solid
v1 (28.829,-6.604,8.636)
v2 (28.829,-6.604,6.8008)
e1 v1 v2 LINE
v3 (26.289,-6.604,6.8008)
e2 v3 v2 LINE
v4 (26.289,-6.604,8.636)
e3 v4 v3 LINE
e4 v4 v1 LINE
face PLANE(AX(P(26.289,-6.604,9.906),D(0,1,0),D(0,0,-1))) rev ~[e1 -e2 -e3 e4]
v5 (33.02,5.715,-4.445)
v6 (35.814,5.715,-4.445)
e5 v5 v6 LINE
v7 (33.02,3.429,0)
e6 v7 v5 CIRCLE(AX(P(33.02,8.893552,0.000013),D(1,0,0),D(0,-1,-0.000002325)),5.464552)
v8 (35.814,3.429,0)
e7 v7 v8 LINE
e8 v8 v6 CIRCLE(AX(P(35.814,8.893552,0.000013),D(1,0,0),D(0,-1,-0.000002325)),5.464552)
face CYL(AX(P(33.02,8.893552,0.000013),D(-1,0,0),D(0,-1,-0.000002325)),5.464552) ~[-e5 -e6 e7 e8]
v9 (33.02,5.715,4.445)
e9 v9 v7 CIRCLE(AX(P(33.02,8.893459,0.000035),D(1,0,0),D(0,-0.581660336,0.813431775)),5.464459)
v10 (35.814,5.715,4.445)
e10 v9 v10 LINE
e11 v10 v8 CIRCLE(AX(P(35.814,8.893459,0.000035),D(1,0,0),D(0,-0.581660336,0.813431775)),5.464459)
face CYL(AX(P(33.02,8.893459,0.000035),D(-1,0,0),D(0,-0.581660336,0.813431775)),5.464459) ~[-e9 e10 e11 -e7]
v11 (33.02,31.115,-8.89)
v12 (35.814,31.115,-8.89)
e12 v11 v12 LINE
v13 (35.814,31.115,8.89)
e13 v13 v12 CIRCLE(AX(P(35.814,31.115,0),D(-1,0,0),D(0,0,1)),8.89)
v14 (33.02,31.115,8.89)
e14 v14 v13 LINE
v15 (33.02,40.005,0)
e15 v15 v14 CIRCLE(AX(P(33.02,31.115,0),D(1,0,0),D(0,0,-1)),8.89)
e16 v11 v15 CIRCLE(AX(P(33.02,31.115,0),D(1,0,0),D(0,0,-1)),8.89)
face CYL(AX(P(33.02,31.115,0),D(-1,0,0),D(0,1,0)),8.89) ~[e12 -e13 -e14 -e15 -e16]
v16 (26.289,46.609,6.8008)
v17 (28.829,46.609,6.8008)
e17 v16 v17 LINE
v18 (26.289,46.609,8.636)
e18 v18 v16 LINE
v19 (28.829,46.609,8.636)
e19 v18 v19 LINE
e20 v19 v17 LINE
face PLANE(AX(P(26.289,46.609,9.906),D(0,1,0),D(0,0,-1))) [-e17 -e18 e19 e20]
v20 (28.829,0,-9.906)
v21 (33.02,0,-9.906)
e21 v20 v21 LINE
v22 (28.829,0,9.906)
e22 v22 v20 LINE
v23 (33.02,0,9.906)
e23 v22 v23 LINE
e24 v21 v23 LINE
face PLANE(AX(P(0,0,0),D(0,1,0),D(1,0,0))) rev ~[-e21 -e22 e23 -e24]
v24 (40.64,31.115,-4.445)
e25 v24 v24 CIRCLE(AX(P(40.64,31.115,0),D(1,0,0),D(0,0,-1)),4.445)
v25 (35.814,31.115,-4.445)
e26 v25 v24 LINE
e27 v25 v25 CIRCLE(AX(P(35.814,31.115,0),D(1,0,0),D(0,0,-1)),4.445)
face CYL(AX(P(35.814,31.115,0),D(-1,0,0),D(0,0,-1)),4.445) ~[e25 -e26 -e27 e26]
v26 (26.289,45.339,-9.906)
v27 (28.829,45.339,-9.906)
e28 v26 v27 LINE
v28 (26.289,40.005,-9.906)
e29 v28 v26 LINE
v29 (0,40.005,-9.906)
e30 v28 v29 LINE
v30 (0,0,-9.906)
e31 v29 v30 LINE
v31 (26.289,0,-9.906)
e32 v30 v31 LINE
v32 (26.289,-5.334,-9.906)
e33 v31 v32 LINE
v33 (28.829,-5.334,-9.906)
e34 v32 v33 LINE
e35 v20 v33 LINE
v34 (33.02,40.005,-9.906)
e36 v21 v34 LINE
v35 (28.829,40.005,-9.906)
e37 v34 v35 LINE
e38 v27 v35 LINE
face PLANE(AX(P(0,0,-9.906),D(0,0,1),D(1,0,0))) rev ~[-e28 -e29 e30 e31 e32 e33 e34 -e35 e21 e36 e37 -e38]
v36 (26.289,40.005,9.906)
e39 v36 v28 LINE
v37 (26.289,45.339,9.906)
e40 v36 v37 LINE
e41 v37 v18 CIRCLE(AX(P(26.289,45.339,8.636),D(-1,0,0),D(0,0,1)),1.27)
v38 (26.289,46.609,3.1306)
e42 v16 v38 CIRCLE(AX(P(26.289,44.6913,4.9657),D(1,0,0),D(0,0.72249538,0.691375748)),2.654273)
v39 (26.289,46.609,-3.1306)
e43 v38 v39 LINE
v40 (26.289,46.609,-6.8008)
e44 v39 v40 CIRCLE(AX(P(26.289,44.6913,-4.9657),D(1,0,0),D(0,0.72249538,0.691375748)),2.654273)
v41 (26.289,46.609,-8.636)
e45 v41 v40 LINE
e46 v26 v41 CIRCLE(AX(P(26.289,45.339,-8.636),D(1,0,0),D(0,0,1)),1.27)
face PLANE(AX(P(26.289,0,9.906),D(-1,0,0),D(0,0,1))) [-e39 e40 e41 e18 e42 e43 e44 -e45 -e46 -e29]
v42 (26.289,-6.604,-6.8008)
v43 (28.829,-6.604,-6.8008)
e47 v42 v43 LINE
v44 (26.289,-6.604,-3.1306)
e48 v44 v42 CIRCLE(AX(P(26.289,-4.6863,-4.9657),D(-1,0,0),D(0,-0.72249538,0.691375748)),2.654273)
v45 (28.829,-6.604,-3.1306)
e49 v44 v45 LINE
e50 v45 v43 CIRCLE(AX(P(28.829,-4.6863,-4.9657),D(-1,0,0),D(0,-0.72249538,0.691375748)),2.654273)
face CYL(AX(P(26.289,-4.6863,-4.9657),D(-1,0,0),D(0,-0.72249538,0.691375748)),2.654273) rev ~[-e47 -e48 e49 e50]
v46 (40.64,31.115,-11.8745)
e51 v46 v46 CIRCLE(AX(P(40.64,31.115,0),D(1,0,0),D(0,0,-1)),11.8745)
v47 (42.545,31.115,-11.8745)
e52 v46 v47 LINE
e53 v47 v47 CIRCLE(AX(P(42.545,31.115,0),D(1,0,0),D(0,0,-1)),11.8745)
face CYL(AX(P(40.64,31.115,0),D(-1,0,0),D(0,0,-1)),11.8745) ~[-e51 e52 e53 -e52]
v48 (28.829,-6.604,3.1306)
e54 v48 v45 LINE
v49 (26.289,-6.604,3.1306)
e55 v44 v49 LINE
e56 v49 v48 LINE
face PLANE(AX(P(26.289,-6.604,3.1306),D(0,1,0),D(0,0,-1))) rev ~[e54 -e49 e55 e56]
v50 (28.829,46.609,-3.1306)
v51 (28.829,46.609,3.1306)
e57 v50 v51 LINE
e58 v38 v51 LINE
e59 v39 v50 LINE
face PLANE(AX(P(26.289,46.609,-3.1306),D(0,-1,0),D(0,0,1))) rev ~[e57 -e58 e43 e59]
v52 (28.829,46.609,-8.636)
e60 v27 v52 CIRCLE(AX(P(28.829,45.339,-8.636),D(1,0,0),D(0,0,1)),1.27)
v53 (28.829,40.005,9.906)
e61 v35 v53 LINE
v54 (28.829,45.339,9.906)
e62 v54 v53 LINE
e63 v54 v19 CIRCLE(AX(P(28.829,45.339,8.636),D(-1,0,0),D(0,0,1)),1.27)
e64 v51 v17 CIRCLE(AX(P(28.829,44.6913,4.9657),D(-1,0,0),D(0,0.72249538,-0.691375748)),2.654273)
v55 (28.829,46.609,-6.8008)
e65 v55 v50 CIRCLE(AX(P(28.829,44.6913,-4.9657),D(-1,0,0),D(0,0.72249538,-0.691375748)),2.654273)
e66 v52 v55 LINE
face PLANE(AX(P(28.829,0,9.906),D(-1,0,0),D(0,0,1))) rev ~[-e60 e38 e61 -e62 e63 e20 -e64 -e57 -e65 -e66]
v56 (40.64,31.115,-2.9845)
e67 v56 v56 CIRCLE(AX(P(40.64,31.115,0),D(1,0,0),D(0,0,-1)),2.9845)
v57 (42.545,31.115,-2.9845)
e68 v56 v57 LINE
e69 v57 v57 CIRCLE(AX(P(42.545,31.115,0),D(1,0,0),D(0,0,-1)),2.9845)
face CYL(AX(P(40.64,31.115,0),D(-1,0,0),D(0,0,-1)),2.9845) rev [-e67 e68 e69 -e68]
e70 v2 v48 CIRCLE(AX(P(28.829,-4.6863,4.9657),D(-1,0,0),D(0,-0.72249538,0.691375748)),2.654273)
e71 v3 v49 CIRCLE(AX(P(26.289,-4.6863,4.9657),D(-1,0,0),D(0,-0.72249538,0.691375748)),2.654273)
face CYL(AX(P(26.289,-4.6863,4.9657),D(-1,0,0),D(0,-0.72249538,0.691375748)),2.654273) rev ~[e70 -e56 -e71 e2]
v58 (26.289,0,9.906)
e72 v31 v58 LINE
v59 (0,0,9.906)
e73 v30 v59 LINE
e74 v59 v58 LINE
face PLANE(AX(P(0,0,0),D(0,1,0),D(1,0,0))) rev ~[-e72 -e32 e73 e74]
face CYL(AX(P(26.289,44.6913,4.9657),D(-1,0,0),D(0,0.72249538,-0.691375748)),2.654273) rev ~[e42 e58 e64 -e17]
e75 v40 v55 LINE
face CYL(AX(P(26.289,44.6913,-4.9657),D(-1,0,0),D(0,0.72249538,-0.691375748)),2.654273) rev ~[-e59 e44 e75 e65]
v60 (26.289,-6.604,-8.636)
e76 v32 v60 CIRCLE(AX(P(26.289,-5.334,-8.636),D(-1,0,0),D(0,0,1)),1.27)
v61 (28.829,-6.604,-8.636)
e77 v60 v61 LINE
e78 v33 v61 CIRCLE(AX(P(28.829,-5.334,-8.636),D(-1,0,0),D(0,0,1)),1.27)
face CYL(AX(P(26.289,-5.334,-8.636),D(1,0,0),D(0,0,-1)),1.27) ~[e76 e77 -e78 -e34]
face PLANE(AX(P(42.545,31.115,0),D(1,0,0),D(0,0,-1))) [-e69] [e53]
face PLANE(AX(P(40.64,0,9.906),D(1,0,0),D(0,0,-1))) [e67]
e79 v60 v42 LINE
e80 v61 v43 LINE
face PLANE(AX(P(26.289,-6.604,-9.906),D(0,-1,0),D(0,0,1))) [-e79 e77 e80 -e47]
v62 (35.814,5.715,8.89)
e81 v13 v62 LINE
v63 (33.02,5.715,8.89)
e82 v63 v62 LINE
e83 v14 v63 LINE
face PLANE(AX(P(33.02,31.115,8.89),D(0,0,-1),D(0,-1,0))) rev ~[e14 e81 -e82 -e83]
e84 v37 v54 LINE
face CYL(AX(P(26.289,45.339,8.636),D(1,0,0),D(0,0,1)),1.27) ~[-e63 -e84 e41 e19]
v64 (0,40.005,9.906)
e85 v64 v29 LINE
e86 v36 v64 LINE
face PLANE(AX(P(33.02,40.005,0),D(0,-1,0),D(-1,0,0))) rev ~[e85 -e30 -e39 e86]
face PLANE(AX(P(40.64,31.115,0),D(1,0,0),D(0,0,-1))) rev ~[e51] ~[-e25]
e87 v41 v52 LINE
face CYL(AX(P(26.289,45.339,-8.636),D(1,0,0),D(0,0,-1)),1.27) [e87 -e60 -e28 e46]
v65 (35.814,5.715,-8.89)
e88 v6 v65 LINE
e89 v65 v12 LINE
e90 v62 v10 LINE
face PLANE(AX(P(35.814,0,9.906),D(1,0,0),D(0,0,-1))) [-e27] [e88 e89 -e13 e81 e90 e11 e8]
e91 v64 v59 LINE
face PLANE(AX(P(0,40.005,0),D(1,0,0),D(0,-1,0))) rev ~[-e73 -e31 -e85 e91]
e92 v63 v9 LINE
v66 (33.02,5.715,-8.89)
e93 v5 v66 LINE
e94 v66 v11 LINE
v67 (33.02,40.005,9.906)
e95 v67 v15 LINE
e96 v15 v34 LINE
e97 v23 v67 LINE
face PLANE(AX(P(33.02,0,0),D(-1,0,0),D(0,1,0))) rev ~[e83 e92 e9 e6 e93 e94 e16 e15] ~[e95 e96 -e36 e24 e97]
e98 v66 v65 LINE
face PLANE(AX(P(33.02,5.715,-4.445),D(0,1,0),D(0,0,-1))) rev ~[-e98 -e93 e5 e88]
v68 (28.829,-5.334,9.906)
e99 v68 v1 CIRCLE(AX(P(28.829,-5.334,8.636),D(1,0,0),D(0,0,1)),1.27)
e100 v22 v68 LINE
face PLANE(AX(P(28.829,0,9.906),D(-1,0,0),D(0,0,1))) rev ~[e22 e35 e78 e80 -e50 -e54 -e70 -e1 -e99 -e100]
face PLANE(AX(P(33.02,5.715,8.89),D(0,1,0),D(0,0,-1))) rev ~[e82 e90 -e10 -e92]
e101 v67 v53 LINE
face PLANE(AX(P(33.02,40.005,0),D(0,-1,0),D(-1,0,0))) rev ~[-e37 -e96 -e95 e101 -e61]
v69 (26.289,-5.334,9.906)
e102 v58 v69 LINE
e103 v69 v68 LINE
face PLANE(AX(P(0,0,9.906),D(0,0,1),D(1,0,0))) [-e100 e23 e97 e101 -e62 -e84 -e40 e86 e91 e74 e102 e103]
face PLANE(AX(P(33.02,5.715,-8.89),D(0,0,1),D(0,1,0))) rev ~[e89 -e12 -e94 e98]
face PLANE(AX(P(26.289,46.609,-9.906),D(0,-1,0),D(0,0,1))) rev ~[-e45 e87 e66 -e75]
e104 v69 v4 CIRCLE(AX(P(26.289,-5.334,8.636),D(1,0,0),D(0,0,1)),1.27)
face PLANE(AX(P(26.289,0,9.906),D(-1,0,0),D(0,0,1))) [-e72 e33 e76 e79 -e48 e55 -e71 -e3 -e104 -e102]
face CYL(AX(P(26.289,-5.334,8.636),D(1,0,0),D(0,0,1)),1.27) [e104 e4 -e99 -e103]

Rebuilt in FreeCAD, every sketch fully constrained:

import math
import FreeCAD as App
import Part
import Sketcher
from FreeCAD import Vector
Q = App.Units.Quantity


def edges_at(feature, points):
    """Names of the edges that pass closest to the given points."""
    edges = feature.Shape.Edges
    near = lambda p: min(range(len(edges)), key=lambda i: edges[i].distToShape(Part.Vertex(*p))[0])
    return sorted({f"Edge{near(p) + 1}" for p in points})


def add_polygon(sketch, points):
    """Adds a closed chain of lines whose ends are joined by coincident constraints."""
    first, n = sketch.GeometryCount, len(points)
    for a, b in zip(points, points[1:] + points[:1]):
        sketch.addGeometry(Part.LineSegment(App.Vector(*a, 0), App.Vector(*b, 0)), False)
    for i in range(n):
        sketch.addConstraint(Sketcher.Constraint("Coincident", first + i, 2, first + (i + 1) % n, 1))

doc = App.newDocument("Part")
body = doc.addObject("PartDesign::Body", "Body")

sketch1 = body.newObject("Sketcher::SketchObject", "Sketch")
sketch1.AttachmentSupport = (doc.getObject("XY_Plane"), [""])
sketch1.MapMode = "FlatFace"
add_polygon(sketch1, [(0, 40), (0, 0), (33, 0), (33, 40)])
sketch1.addConstraint([
    Sketcher.Constraint("Vertical", 0),
    Sketcher.Constraint("Horizontal", 1),
    Sketcher.Constraint("Vertical", 2),
    Sketcher.Constraint("Horizontal", 3),
    Sketcher.Constraint("Coincident", 0, 2, -1, 1),
    Sketcher.Constraint("DistanceX", 1, 1, 1, 2, Q("1.3 in")),
    Sketcher.Constraint("DistanceY", 0, 2, 0, 1, Q("1.575 in")),
])
pad1 = body.newObject("PartDesign::Pad", "Pad")
pad1.Profile = sketch1
pad1.Length = Q("0.78 in")
pad1.Midplane = True

sketch2 = body.newObject("Sketcher::SketchObject", "Sketch001")
sketch2.AttachmentSupport = (doc.getObject("YZ_Plane"), [""])
sketch2.MapMode = "FlatFace"
sketch2.AttachmentOffset = App.Placement(Vector(0, 0, 1.035 * 25.4), App.Rotation())
sketch2.addGeometry([
    Part.LineSegment(Vector(40, -9.9, 0), Vector(40, 9.9, 0)),
    Part.LineSegment(Vector(40, 9.9, 0), Vector(46.6, 9.9, 0)),
    Part.LineSegment(Vector(46.6, 9.9, 0), Vector(46.6, 6.8, 0)),
    Part.ArcOfCircle(Part.Circle(Vector(44.7, 5, 0), Vector(0, 0, 1), 2.7), math.radians(44), math.radians(316)),
    Part.LineSegment(Vector(46.6, 3.1, 0), Vector(46.6, -3.1, 0)),
    Part.ArcOfCircle(Part.Circle(Vector(44.7, -5, 0), Vector(0, 0, 1), 2.7), math.radians(44), math.radians(316)),
    Part.LineSegment(Vector(46.6, -6.8, 0), Vector(46.6, -9.9, 0)),
    Part.LineSegment(Vector(46.6, -9.9, 0), Vector(40, -9.9, 0)),
    Part.LineSegment(Vector(0, -9.9, 0), Vector(-6.6, -9.9, 0)),
    Part.LineSegment(Vector(-6.6, -9.9, 0), Vector(-6.6, -6.8, 0)),
    Part.ArcOfCircle(Part.Circle(Vector(-4.7, -5, 0), Vector(0, 0, 1), 2.7), math.radians(-136), math.radians(136)),
    Part.LineSegment(Vector(-6.6, -3.1, 0), Vector(-6.6, 3.1, 0)),
    Part.ArcOfCircle(Part.Circle(Vector(-4.7, 5, 0), Vector(0, 0, 1), 2.7), math.radians(-136), math.radians(136)),
    Part.LineSegment(Vector(-6.6, 6.8, 0), Vector(-6.6, 9.9, 0)),
    Part.LineSegment(Vector(-6.6, 9.9, 0), Vector(0, 9.9, 0)),
    Part.LineSegment(Vector(0, 9.9, 0), Vector(0, -9.9, 0)),
], False)
sketch2.addConstraint([
    Sketcher.Constraint("Coincident", 0, 2, 1, 1),
    Sketcher.Constraint("Coincident", 1, 2, 2, 1),
    Sketcher.Constraint("Coincident", 2, 2, 3, 1),
    Sketcher.Constraint("Coincident", 3, 2, 4, 1),
    Sketcher.Constraint("Coincident", 4, 2, 5, 1),
    Sketcher.Constraint("Coincident", 5, 2, 6, 1),
    Sketcher.Constraint("Coincident", 6, 2, 7, 1),
    Sketcher.Constraint("Coincident", 7, 2, 0, 1),
    Sketcher.Constraint("Coincident", 8, 2, 9, 1),
    Sketcher.Constraint("Coincident", 9, 2, 10, 1),
    Sketcher.Constraint("Coincident", 10, 2, 11, 1),
    Sketcher.Constraint("Coincident", 11, 2, 12, 1),
    Sketcher.Constraint("Coincident", 12, 2, 13, 1),
    Sketcher.Constraint("Coincident", 13, 2, 14, 1),
    Sketcher.Constraint("Coincident", 14, 2, 15, 1),
    Sketcher.Constraint("Coincident", 15, 2, 8, 1),
    Sketcher.Constraint("Vertical", 0),
    Sketcher.Constraint("Horizontal", 1),
    Sketcher.Constraint("Vertical", 2),
    Sketcher.Constraint("Vertical", 4),
    Sketcher.Constraint("Vertical", 6),
    Sketcher.Constraint("Horizontal", 7),
    Sketcher.Constraint("Horizontal", 8),
    Sketcher.Constraint("Vertical", 9),
    Sketcher.Constraint("Vertical", 11),
    Sketcher.Constraint("Vertical", 13),
    Sketcher.Constraint("Horizontal", 14),
    Sketcher.Constraint("Vertical", 15),
    Sketcher.Constraint("Equal", 3, 5),
    Sketcher.Constraint("Equal", 5, 10),
    Sketcher.Constraint("Equal", 10, 12),
    Sketcher.Constraint("Symmetric", 14, 2, 15, 2, -1, 1),
    Sketcher.Constraint("Symmetric", 3, 3, 5, 3, -1),
    Sketcher.Constraint("Symmetric", 10, 3, 12, 3, -1),
    Sketcher.Constraint("Symmetric", 1, 2, 6, 2, -1),
    Sketcher.Constraint("Horizontal", 5, 3, 10, 3),
    Sketcher.Constraint("Horizontal", 7, 2, 8, 2),
    Sketcher.Constraint("Horizontal", 5, 2, 9, 2),
    Sketcher.Constraint("Horizontal", 4, 2, 10, 2),
    Sketcher.Constraint("Horizontal", 2, 2, 12, 2),
    Sketcher.Constraint("Vertical", 2, 2, 3, 2),
    Sketcher.Constraint("Equal", 7, 8),
    Sketcher.Constraint("DistanceX", 1, 1, 1, 2, Q("0.26 in")),
    Sketcher.Constraint("DistanceY", 0, 1, 0, 2, Q("0.78 in")),
    Sketcher.Constraint("Radius", 3, Q("0.1045 in")),
    Sketcher.Constraint("DistanceY", 4, 2, 4, 1, Q("0.2465 in")),
    Sketcher.Constraint("DistanceX", -1, 1, 0, 2, Q("1.575 in")),
    Sketcher.Constraint("DistanceY", 5, 3, 3, 3, Q("0.391 in")),
])
pad2 = body.newObject("PartDesign::Pad", "Pad001")
pad2.Profile = sketch2
pad2.Length = Q("0.1 in")
doc.recompute()

fillet = body.newObject("PartDesign::Fillet", "Fillet")
fillet.Base = (pad2, edges_at(pad2, [
    (27.559, 46.609, 9.906),
    (27.559, 46.609, -9.906),
    (27.559, -6.604, 9.906),
    (27.559, -6.604, -9.906),
]))
fillet.Radius = Q("0.05 in")

sketch3 = body.newObject("Sketcher::SketchObject", "Sketch002")
sketch3.AttachmentSupport = (doc.getObject("YZ_Plane"), [""])
sketch3.MapMode = "FlatFace"
sketch3.AttachmentOffset = App.Placement(Vector(0, 0, 1.3 * 25.4), App.Rotation())
sketch3.addGeometry([
    Part.LineSegment(Vector(31.1, 8.9, 0), Vector(5.7, 8.9, 0)),
    Part.LineSegment(Vector(5.7, 8.9, 0), Vector(5.7, 4.4, 0)),
    Part.ArcOfCircle(Part.Circle(Vector(8.9, 0, 0), Vector(0, 0, 1), 5.5), math.radians(126), math.radians(180)),
    Part.ArcOfCircle(Part.Circle(Vector(8.9, 0, 0), Vector(0, 0, 1), 5.5), math.radians(180), math.radians(234)),
    Part.LineSegment(Vector(5.7, -4.4, 0), Vector(5.7, -8.9, 0)),
    Part.LineSegment(Vector(5.7, -8.9, 0), Vector(31.1, -8.9, 0)),
    Part.ArcOfCircle(Part.Circle(Vector(31.1, 0, 0), Vector(0, 0, 1), 8.9), math.radians(-90), math.radians(90)),
], False)
sketch3.addConstraint([
    Sketcher.Constraint("Coincident", 0, 2, 1, 1),
    Sketcher.Constraint("Coincident", 1, 2, 2, 1),
    Sketcher.Constraint("Tangent", 2, 2, 3, 1),
    Sketcher.Constraint("Coincident", 3, 2, 4, 1),
    Sketcher.Constraint("Coincident", 4, 2, 5, 1),
    Sketcher.Constraint("Tangent", 5, 2, 6, 1),
    Sketcher.Constraint("Tangent", 6, 2, 0, 1),
    Sketcher.Constraint("Horizontal", 0),
    Sketcher.Constraint("Vertical", 1),
    Sketcher.Constraint("Vertical", 4),
    Sketcher.Constraint("Horizontal", 5),
    Sketcher.Constraint("Equal", 2, 3),
    Sketcher.Constraint("Symmetric", 1, 2, 3, 2, -1),
    Sketcher.Constraint("PointOnObject", 6, 3, -1),
    Sketcher.Constraint("PointOnObject", 2, 2, -1),
    Sketcher.Constraint("Radius", 6, Q("0.35 in")),
    Sketcher.Constraint("DistanceX", 0, 2, 0, 1, Q("1 in")),
    Sketcher.Constraint("DistanceY", 1, 2, 1, 1, Q("0.175 in")),
    Sketcher.Constraint("DistanceX", 2, 2, 1, 2, Q("0.09 in")),
    Sketcher.Constraint("DistanceX", -1, 1, 6, 3, Q("1.225 in")),
])
pad3 = body.newObject("PartDesign::Pad", "Pad002")
pad3.Profile = sketch3
pad3.Length = Q("0.11 in")

sketch4 = body.newObject("Sketcher::SketchObject", "Sketch003")
sketch4.AttachmentSupport = (doc.getObject("YZ_Plane"), [""])
sketch4.MapMode = "FlatFace"
sketch4.AttachmentOffset = App.Placement(Vector(0, 0, 1.41 * 25.4), App.Rotation())
sketch4.addGeometry(Part.Circle(Vector(31.1, 0, 0), Vector(0, 0, 1), 4.4), False)
sketch4.addConstraint([
    Sketcher.Constraint("PointOnObject", 0, 3, -1),
    Sketcher.Constraint("Diameter", 0, Q("0.35 in")),
    Sketcher.Constraint("DistanceX", -1, 1, 0, 3, Q("1.225 in")),
])
pad4 = body.newObject("PartDesign::Pad", "Pad003")
pad4.Profile = sketch4
pad4.Length = Q("0.19 in")

sketch5 = body.newObject("Sketcher::SketchObject", "Sketch004")
sketch5.AttachmentSupport = (doc.getObject("YZ_Plane"), [""])
sketch5.MapMode = "FlatFace"
sketch5.AttachmentOffset = App.Placement(Vector(0, 0, 1.6 * 25.4), App.Rotation())
sketch5.addGeometry([
    Part.Circle(Vector(31.1, 0, 0), Vector(0, 0, 1), 11.9),
    Part.Circle(Vector(31.1, 0, 0), Vector(0, 0, 1), 3),
], False)
sketch5.addConstraint([
    Sketcher.Constraint("Coincident", 1, 3, 0, 3),
    Sketcher.Constraint("PointOnObject", 0, 3, -1),
    Sketcher.Constraint("Diameter", 0, Q("0.935 in")),
    Sketcher.Constraint("Diameter", 1, Q("0.235 in")),
    Sketcher.Constraint("DistanceX", -1, 1, 0, 3, Q("1.225 in")),
])
pad5 = body.newObject("PartDesign::Pad", "Pad004")
pad5.Profile = sketch5
pad5.Length = Q("0.075 in")

doc.recompute()
